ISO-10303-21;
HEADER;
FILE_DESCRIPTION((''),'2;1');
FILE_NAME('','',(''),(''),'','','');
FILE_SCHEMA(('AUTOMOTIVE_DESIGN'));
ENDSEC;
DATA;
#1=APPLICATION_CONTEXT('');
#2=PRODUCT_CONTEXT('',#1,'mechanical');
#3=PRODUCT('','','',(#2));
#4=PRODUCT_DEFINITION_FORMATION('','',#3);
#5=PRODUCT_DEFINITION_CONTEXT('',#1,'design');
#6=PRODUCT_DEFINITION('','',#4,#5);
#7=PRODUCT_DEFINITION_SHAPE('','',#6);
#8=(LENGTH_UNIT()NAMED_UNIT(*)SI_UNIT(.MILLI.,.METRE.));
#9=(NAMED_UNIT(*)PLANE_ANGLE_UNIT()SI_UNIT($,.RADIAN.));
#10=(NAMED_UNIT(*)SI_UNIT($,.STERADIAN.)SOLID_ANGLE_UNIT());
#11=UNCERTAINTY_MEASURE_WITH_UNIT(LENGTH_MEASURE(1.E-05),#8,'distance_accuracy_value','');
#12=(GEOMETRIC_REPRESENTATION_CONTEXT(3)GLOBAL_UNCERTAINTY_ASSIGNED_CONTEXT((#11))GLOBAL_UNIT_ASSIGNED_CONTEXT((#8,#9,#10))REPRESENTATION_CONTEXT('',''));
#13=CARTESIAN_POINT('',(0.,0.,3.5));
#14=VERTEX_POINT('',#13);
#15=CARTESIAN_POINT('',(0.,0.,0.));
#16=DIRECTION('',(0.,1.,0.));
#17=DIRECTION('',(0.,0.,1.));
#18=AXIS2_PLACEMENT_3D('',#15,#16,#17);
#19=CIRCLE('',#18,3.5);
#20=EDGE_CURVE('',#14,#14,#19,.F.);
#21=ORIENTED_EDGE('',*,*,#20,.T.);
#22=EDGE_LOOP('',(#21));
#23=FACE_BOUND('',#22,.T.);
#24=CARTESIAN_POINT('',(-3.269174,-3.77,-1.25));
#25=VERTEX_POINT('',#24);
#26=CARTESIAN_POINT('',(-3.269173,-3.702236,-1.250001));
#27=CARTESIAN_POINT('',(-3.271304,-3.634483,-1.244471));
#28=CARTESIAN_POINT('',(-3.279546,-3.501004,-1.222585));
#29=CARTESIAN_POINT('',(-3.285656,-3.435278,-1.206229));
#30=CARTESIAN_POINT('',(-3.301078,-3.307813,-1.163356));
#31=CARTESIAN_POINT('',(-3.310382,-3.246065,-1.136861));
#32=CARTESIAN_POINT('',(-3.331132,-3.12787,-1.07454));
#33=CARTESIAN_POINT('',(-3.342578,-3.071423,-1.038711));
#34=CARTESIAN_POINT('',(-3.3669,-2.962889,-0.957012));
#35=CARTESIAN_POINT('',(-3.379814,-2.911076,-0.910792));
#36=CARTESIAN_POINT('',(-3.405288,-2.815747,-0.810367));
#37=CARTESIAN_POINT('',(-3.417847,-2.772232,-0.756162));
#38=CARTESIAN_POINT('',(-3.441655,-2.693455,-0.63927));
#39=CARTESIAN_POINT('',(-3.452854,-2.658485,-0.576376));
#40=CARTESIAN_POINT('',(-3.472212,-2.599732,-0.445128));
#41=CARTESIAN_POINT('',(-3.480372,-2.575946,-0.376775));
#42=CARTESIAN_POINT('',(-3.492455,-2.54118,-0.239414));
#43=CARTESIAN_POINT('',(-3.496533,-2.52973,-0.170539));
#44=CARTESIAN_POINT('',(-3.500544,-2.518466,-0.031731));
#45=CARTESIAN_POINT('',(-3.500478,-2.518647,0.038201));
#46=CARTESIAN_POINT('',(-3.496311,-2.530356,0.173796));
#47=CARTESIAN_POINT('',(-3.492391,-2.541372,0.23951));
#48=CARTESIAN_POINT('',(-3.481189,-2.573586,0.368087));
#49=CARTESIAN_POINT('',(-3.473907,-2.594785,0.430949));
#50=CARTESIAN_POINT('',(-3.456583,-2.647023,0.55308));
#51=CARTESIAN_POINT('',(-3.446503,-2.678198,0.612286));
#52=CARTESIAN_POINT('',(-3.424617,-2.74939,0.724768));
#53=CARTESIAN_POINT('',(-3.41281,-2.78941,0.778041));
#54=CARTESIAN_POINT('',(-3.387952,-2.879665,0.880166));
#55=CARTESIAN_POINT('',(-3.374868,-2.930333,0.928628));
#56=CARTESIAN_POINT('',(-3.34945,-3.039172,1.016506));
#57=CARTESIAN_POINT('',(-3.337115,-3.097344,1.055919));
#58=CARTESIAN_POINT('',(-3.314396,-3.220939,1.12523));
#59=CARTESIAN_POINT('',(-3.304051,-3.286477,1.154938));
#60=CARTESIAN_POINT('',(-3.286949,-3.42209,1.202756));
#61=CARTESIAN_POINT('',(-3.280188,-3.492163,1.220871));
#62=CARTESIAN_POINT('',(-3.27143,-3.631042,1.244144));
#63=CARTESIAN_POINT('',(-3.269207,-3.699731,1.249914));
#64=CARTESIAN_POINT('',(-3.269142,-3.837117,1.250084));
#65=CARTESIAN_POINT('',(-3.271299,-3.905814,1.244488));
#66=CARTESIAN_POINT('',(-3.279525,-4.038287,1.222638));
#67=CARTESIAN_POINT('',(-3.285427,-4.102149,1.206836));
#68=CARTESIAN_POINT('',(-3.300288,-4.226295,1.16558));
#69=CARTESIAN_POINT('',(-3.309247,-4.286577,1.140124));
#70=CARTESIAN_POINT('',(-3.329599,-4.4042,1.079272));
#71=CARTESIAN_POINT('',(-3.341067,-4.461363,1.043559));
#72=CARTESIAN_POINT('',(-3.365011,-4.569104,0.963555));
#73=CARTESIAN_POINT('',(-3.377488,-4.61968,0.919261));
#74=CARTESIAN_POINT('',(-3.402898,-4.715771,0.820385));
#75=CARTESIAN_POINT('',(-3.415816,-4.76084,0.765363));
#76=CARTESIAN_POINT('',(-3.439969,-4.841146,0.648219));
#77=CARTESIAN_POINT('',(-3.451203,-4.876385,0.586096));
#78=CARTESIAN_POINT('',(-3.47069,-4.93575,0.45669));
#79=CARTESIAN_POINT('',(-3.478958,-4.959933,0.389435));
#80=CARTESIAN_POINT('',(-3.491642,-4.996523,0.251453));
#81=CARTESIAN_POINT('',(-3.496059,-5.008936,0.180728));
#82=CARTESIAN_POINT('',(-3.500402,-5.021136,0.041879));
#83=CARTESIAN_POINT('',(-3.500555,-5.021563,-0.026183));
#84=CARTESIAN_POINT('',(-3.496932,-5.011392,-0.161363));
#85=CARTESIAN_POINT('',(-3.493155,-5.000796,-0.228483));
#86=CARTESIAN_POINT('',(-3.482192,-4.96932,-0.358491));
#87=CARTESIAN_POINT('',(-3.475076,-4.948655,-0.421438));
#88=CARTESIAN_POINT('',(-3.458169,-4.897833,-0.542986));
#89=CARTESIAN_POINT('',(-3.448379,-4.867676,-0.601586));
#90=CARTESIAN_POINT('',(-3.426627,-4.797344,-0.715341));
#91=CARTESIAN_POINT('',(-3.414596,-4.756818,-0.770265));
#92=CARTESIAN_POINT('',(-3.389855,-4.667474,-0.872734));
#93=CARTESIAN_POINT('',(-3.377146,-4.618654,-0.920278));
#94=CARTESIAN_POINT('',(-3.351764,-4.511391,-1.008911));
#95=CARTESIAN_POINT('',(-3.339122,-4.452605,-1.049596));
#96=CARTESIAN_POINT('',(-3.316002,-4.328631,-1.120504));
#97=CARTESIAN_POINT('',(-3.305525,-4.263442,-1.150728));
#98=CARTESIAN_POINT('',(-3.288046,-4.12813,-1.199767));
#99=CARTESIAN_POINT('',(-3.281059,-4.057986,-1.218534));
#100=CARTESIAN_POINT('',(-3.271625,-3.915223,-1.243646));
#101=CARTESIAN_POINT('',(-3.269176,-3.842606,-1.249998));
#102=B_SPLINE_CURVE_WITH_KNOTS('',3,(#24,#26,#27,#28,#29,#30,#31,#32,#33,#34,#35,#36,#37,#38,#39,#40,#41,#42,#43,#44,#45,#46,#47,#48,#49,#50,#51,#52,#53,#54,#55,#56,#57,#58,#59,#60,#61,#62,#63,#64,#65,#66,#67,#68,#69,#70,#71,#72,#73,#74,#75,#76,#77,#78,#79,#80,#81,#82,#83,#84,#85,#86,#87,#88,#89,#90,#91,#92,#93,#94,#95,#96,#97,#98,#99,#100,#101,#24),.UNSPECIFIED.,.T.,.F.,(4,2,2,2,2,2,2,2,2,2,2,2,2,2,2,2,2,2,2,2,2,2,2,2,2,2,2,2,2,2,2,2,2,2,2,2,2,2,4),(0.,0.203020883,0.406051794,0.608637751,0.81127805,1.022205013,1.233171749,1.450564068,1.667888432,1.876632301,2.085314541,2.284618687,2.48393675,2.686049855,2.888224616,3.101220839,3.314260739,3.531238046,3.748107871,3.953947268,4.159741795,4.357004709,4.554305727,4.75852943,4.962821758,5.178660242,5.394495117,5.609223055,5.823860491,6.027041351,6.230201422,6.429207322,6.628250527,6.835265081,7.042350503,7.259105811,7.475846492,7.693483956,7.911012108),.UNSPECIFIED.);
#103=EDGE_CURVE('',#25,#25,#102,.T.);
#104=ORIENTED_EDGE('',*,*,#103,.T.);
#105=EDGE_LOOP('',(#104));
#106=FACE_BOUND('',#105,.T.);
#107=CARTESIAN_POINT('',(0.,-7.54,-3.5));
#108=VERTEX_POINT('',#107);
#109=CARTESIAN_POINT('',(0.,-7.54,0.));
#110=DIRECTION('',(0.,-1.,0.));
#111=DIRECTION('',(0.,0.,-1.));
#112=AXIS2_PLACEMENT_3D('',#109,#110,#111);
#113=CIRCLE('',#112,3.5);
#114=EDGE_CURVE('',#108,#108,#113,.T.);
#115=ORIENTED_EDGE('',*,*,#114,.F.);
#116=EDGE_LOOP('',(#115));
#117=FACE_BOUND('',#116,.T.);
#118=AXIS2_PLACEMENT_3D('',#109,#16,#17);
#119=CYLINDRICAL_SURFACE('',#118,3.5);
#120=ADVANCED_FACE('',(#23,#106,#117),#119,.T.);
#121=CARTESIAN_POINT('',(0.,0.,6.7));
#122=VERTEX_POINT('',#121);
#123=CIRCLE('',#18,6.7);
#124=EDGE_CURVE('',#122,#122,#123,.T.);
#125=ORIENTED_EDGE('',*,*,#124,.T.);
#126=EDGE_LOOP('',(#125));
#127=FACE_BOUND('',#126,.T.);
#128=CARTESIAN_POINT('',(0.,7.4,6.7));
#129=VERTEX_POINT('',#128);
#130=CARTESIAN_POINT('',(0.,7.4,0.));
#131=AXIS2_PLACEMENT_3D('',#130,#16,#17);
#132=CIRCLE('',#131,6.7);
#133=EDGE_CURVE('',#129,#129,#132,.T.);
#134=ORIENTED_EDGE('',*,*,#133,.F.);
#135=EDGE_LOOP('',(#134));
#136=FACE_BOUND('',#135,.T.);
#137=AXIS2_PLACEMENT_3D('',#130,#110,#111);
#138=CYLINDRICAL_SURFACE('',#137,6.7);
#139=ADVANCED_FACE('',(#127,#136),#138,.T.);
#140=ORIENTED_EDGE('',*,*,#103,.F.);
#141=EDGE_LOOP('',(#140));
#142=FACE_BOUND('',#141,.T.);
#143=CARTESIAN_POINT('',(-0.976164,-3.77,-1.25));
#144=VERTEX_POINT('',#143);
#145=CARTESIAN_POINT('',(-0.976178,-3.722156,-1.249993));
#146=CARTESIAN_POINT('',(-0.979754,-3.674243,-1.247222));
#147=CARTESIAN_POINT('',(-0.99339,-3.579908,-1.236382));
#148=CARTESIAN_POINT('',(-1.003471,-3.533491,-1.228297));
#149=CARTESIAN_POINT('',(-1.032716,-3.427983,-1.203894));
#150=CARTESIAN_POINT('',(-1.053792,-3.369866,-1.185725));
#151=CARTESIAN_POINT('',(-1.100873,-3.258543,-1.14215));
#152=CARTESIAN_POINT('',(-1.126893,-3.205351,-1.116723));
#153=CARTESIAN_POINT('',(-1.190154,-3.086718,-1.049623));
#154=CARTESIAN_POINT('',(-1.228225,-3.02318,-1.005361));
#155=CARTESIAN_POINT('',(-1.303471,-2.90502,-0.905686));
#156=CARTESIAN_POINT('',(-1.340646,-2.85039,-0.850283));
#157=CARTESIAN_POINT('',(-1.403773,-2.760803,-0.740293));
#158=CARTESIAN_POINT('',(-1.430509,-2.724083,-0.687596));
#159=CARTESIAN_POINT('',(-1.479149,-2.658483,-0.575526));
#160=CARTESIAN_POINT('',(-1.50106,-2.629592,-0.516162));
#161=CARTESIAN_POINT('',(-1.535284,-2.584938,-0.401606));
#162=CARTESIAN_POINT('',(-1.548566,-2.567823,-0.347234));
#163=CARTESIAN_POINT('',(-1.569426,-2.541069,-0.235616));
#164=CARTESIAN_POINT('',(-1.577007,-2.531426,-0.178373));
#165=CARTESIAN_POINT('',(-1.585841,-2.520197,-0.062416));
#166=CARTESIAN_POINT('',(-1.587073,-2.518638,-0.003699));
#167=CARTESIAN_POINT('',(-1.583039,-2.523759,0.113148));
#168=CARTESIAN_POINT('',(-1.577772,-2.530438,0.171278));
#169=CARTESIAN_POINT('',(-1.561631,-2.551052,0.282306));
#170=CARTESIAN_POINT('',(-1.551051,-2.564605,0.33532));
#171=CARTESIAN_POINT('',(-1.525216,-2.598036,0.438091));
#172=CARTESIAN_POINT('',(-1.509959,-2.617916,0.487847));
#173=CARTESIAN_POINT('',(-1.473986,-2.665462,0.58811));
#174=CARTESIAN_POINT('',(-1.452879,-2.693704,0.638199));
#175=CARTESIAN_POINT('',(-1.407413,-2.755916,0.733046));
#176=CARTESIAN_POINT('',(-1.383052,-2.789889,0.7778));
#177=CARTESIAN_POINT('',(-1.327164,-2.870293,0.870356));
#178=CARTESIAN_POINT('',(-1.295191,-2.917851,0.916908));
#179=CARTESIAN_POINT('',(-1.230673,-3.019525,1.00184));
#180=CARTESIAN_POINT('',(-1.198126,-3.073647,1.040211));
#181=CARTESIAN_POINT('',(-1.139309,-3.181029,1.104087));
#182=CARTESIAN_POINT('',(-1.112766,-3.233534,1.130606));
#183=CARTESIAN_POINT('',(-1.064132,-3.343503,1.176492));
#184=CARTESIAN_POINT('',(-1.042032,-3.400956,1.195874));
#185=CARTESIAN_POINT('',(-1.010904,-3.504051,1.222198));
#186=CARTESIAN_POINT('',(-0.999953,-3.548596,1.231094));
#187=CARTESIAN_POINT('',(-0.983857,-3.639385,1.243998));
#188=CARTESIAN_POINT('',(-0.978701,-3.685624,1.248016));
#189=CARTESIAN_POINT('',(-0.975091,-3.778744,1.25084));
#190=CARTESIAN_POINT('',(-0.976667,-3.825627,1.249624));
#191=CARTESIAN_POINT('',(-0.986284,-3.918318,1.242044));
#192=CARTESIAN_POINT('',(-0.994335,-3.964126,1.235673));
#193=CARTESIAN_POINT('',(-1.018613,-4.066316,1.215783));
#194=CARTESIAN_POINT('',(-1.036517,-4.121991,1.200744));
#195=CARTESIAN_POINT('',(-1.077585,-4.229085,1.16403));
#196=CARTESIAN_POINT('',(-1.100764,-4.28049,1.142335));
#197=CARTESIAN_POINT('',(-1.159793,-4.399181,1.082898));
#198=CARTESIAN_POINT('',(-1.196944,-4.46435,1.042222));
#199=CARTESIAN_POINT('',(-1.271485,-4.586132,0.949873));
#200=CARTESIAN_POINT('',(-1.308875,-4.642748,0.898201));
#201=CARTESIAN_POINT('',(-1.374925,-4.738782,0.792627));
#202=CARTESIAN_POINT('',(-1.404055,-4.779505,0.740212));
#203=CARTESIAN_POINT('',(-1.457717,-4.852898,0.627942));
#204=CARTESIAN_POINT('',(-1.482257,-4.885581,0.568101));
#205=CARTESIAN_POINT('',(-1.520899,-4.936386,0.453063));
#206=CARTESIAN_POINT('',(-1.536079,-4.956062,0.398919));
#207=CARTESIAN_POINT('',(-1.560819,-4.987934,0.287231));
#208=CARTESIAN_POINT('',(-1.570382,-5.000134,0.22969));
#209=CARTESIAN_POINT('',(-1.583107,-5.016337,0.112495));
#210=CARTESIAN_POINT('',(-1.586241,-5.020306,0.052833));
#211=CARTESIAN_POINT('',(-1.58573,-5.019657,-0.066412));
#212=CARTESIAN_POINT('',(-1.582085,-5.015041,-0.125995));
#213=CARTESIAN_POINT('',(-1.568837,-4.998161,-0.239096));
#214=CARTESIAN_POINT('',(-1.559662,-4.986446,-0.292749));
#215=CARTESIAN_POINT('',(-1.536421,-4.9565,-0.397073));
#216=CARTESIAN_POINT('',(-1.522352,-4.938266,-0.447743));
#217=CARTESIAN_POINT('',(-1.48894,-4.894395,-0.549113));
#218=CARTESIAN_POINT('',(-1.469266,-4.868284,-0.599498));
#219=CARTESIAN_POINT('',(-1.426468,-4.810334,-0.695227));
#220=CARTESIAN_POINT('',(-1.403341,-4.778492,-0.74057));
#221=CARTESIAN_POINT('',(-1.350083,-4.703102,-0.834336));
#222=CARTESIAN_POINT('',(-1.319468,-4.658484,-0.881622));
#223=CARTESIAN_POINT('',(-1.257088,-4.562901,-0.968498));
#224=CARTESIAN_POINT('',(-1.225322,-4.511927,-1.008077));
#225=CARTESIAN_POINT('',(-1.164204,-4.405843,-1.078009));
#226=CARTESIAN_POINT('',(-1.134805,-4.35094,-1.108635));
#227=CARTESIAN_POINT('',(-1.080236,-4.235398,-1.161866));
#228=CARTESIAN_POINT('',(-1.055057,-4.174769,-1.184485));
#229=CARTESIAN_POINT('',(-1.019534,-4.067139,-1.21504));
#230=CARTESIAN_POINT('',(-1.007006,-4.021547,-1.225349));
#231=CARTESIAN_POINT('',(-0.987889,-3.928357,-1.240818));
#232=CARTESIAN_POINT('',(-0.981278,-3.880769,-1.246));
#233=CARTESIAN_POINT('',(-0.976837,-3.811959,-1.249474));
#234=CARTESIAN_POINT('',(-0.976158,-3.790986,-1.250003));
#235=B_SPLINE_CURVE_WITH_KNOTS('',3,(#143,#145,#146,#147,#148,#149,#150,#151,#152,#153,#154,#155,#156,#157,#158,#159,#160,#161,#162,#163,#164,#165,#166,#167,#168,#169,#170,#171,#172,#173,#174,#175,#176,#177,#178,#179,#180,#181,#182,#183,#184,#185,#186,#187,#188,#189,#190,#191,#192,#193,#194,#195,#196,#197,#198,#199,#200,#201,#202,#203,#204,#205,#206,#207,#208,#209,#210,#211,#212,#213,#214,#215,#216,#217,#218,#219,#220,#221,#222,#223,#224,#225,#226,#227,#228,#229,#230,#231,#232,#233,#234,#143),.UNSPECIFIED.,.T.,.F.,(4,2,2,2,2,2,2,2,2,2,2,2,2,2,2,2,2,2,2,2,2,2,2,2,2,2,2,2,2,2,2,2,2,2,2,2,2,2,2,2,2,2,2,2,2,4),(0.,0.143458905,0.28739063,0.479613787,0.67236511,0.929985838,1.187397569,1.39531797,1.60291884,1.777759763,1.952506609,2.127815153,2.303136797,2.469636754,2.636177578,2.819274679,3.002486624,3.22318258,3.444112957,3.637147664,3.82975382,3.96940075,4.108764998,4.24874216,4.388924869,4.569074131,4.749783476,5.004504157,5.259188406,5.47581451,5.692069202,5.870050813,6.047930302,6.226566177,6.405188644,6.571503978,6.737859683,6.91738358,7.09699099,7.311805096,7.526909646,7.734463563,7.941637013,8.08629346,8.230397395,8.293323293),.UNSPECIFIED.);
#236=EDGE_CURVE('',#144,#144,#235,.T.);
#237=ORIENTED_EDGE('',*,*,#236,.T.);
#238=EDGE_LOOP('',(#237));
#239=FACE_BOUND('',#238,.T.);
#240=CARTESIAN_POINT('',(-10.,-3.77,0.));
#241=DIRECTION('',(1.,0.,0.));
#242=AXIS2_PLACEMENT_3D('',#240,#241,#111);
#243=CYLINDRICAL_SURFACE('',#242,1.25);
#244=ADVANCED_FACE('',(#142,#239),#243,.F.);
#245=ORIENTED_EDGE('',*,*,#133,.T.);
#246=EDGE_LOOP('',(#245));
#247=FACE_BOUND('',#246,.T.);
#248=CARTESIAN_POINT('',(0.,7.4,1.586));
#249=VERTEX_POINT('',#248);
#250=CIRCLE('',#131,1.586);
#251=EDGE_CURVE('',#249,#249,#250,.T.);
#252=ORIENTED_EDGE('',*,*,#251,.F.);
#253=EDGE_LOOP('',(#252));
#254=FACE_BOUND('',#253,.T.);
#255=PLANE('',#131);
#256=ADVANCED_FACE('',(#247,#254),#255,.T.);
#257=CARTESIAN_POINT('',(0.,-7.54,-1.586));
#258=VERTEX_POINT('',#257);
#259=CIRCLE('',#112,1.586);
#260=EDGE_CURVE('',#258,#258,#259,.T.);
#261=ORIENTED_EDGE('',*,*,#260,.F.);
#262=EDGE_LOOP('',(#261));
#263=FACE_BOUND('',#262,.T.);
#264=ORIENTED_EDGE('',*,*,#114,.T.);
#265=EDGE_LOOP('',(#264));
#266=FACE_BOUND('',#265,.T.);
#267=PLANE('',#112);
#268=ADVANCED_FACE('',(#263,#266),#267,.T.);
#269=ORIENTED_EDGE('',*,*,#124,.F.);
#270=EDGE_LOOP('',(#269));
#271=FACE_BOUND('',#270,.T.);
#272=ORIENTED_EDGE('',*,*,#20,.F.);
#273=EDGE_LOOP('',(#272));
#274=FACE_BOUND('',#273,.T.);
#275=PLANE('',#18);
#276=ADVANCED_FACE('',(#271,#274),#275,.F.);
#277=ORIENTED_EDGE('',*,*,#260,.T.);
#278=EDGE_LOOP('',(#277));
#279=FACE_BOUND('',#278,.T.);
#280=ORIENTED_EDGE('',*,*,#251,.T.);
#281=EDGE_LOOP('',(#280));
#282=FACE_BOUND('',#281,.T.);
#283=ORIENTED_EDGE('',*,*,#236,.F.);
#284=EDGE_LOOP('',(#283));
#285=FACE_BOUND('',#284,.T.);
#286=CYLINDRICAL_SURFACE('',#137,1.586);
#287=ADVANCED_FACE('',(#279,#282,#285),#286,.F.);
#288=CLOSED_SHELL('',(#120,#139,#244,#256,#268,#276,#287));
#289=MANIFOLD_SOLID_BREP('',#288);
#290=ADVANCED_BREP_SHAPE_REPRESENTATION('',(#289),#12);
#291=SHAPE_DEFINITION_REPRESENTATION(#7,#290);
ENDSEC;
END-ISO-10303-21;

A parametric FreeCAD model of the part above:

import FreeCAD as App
import Part
import Sketcher
from FreeCAD import Vector

doc = App.newDocument("Part")
body = doc.addObject("PartDesign::Body", "Body")

# Sketch on XZ plane
sketch1 = doc.addObject("Sketcher::SketchObject", "Sketch")
body.addObject(sketch1)
sketch1.AttachmentSupport = (doc.XZ_Plane, [""])
sketch1.MapMode = "FlatFace"
sketch1.addGeometry([
    Part.Circle(Vector(0, 0, 0), Vector(0, 0, 1), 6.7),
    Part.Circle(Vector(0, 0, 0), Vector(0, 0, 1), 1.586),
], False)
sketch1.addConstraint([
    Sketcher.Constraint("Coincident", 0, 3, -1, 1),
    Sketcher.Constraint("Coincident", 1, 3, -1, 1),
    Sketcher.Constraint("Diameter", 0, 13.4),
    Sketcher.Constraint("Diameter", 1, 3.172),
])
pad1 = doc.addObject("PartDesign::Pad", "Pad")
body.addObject(pad1)
pad1.Profile = sketch1
pad1.Length = 7.4
pad1.Reversed = True

# Sketch on XZ plane
sketch2 = doc.addObject("Sketcher::SketchObject", "Sketch001")
body.addObject(sketch2)
sketch2.AttachmentSupport = (doc.XZ_Plane, [""])
sketch2.MapMode = "FlatFace"
sketch2.addGeometry([
    Part.Circle(Vector(0, 0, 0), Vector(0, 0, 1), 3.5),
    Part.Circle(Vector(0, 0, 0), Vector(0, 0, 1), 1.586),
], False)
sketch2.addConstraint([
    Sketcher.Constraint("Coincident", 0, 3, -1, 1),
    Sketcher.Constraint("Coincident", 1, 3, -1, 1),
    Sketcher.Constraint("Diameter", 0, 7.0),
    Sketcher.Constraint("Diameter", 1, 3.172),
])
pad2 = doc.addObject("PartDesign::Pad", "Pad001")
body.addObject(pad2)
pad2.Profile = sketch2
pad2.Length = 7.54

# Sketch on YZ plane
sketch3 = doc.addObject("Sketcher::SketchObject", "Sketch002")
body.addObject(sketch3)
sketch3.AttachmentSupport = (doc.YZ_Plane, [""])
sketch3.MapMode = "FlatFace"
sketch3.addGeometry(Part.Circle(Vector(-3.77, 0, 0), Vector(0, 0, 1), 1.25), False)
sketch3.addConstraint([
    Sketcher.Constraint("PointOnObject", 0, 3, -1),
    Sketcher.Constraint("Diameter", 0, 2.5),
    Sketcher.Constraint("DistanceX", 0, 3, -1, 1, 3.77),
])
pocket1 = doc.addObject("PartDesign::Pocket", "Pocket")
body.addObject(pocket1)
pocket1.Profile = sketch3
pocket1.Length = 10

doc.recompute()
